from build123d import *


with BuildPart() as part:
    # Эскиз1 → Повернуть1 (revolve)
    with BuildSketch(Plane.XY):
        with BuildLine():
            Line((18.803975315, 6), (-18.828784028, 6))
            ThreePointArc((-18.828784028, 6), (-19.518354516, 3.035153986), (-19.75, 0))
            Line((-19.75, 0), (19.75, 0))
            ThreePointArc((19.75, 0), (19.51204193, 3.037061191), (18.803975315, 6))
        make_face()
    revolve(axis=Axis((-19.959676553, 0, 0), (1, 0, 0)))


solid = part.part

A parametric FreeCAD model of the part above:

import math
import FreeCAD as App
import Part
import Sketcher
from FreeCAD import Vector
Q = App.Units.Quantity

doc = App.newDocument("Part")
body = doc.addObject("PartDesign::Body", "Body")

# Sketch on XY plane
sketch1 = body.newObject("Sketcher::SketchObject", "Sketch")
sketch1.AttachmentSupport = (doc.getObject("XY_Plane"), [""])
sketch1.MapMode = "FlatFace"
sketch1.addGeometry([
    Part.LineSegment(Vector(19, 6, 0), Vector(-19, 6, 0)),
    Part.ArcOfCircle(Part.Circle(Vector(0, 0, 0), Vector(0, 0, 1), 20), math.radians(162.54), math.radians(180)),
    Part.LineSegment(Vector(-20, 0, 0), Vector(20, 0, 0)),
    Part.ArcOfCircle(Part.Circle(Vector(0, 0, 0), Vector(0, 0, 1), 20), math.radians(0), math.radians(17.92)),
], False)
sketch1.addConstraint([
    Sketcher.Constraint("Coincident", 0, 2, 1, 1),
    Sketcher.Constraint("Coincident", 1, 2, 2, 1),
    Sketcher.Constraint("Coincident", 2, 2, 3, 1),
    Sketcher.Constraint("Coincident", 3, 2, 0, 1),
    Sketcher.Constraint("Horizontal", 0),
    Sketcher.Constraint("Horizontal", 2),
    Sketcher.Constraint("Coincident", 3, 3, 1, 3),
    Sketcher.Constraint("Symmetric", 1, 2, 2, 2, -1, 1),
    Sketcher.Constraint("PointOnObject", 1, 3, -1),
    Sketcher.Constraint("Radius", 1, Q("20 mm")),
    Sketcher.Constraint("Radius", 3, Q("19.5 mm")),
    Sketcher.Constraint("DistanceY", -1, 1, 0, 2, Q("6 mm")),
])
revolution = body.newObject("PartDesign::Revolution", "Revolution")
revolution.Profile = sketch1
revolution.ReferenceAxis = (sketch1, ["H_Axis"])
revolution.Angle = 360

doc.recompute()
